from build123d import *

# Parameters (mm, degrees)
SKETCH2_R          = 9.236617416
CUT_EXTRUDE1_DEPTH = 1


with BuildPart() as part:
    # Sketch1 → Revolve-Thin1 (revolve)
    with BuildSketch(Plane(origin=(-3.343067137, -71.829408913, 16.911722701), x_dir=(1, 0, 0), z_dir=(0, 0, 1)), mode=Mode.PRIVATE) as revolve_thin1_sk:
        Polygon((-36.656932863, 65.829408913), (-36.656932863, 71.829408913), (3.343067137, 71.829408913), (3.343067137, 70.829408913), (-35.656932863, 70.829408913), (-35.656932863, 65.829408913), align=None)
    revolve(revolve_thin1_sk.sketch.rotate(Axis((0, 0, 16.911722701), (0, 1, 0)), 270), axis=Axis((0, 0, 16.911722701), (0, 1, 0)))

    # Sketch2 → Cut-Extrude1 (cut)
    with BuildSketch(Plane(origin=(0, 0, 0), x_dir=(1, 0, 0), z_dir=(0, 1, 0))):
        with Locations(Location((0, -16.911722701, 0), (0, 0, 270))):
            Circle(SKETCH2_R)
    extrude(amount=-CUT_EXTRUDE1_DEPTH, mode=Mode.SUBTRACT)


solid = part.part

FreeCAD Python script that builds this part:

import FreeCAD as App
import Part
import Sketcher
from FreeCAD import Vector
Q = App.Units.Quantity

doc = App.newDocument("Part")
body = doc.addObject("PartDesign::Body", "Body")

# Sketch on XY plane
sketch1 = body.newObject("Sketcher::SketchObject", "Sketch")
sketch1.AttachmentSupport = (doc.getObject("XY_Plane"), [""])
sketch1.MapMode = "FlatFace"
sketch1.AttachmentOffset = App.Placement(Vector(0, 0, 16.911723), App.Rotation())
sketch1.addGeometry([
    Part.LineSegment(Vector(-40, 0, 0), Vector(-40, -6, 0)),  # 0
    Part.LineSegment(Vector(-40, -6, 0), Vector(-39, -6, 0)),  # 1
    Part.LineSegment(Vector(-39, -6, 0), Vector(-39, -1, 0)),  # 2
    Part.LineSegment(Vector(-39, -1, 0), Vector(0, -1, 0)),  # 3
    Part.LineSegment(Vector(0, -1, 0), Vector(0, 0, 0)),  # 4
    Part.LineSegment(Vector(0, 0, 0), Vector(-40, 0, 0)),  # 5
], False)
sketch1.addConstraint([
    Sketcher.Constraint("Coincident", 0, 2, 1, 1),
    Sketcher.Constraint("Coincident", 1, 2, 2, 1),
    Sketcher.Constraint("Coincident", 2, 2, 3, 1),
    Sketcher.Constraint("Coincident", 3, 2, 4, 1),
    Sketcher.Constraint("Coincident", 4, 2, 5, 1),
    Sketcher.Constraint("Coincident", 5, 2, 0, 1),
    Sketcher.Constraint("Vertical", 0),
    Sketcher.Constraint("Horizontal", 1),
    Sketcher.Constraint("Vertical", 2),
    Sketcher.Constraint("Horizontal", 3),
    Sketcher.Constraint("Vertical", 4),
    Sketcher.Constraint("Horizontal", 5),
    Sketcher.Constraint("Coincident", 4, 2, -1, 1),
    Sketcher.Constraint("Equal", 1, 4),
    Sketcher.Constraint("DistanceX", 1, 1, 1, 2, Q("1 mm")),
    Sketcher.Constraint("DistanceX", 3, 1, 3, 2, Q("39 mm")),
    Sketcher.Constraint("DistanceY", 0, 2, 0, 1, Q("6 mm")),
])
revolution = body.newObject("PartDesign::Revolution", "Revolution")
revolution.Profile = sketch1
revolution.ReferenceAxis = (sketch1, ["V_Axis"])
revolution.Angle = 360

# Sketch on XZ plane
sketch2 = body.newObject("Sketcher::SketchObject", "Sketch001")
sketch2.AttachmentSupport = (doc.getObject("XZ_Plane"), [""])
sketch2.MapMode = "FlatFace"
sketch2.addGeometry(Part.Circle(Vector(0, 17, 0), Vector(0, 0, 1), 9), False)
sketch2.addConstraint([
    Sketcher.Constraint("PointOnObject", 0, 3, -2),
    Sketcher.Constraint("Diameter", 0, Q("18.473235 mm")),
    Sketcher.Constraint("DistanceY", -1, 1, 0, 3, Q("16.911723 mm")),
])
pocket1 = body.newObject("PartDesign::Pocket", "Pocket")
pocket1.Profile = sketch2
pocket1.Length = 1
pocket1.Reversed = True

doc.recompute()
